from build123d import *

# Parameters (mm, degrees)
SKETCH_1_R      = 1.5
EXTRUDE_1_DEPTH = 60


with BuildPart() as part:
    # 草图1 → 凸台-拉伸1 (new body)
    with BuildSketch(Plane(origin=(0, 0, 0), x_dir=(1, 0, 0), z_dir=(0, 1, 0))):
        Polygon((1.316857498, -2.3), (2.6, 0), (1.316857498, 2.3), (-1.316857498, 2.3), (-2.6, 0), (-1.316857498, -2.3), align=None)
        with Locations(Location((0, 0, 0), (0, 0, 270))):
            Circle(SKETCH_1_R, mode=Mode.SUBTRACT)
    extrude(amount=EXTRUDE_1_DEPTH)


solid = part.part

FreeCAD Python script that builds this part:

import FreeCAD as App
import Part
import Sketcher

V = App.Vector

doc = App.newDocument("Part")
params = doc.addObject("Spreadsheet::Sheet", "Params")
for row, (alias, value) in enumerate([
    ("sketch1_diameter", "3 mm"),
    ("pad1_length", "60 mm"),
], start=1):
    params.set(f"A{row}", alias)
    params.set(f"B{row}", "=" + value)
    params.setAlias(f"B{row}", alias)

body = doc.addObject("PartDesign::Body", "Body")

# Sketch on XZ plane
sketch1 = body.newObject("Sketcher::SketchObject", "Sketch")
sketch1.AttachmentSupport = (doc.getObject("XZ_Plane"), [""])
sketch1.MapMode = "FlatFace"
sketch1.addGeometry([
    Part.LineSegment(V(1.3, 2.3, 0), V(2.6, 0, 0)),  # 0
    Part.LineSegment(V(2.6, 0, 0), V(1.3, -2.3, 0)),  # 1
    Part.LineSegment(V(1.3, -2.3, 0), V(-1.3, -2.3, 0)),  # 2
    Part.LineSegment(V(-1.3, -2.3, 0), V(-2.6, 0, 0)),  # 3
    Part.LineSegment(V(-2.6, 0, 0), V(-1.3, 2.3, 0)),  # 4
    Part.LineSegment(V(-1.3, 2.3, 0), V(1.3, 2.3, 0)),  # 5
    Part.Circle(V(0, 0, 0), V(0, 0, 1), 1.5),  # 6
], False)
sketch1.addConstraint([
    Sketcher.Constraint("Coincident", 0, 2, 1, 1),
    Sketcher.Constraint("Coincident", 1, 2, 2, 1),
    Sketcher.Constraint("Coincident", 2, 2, 3, 1),
    Sketcher.Constraint("Coincident", 3, 2, 4, 1),
    Sketcher.Constraint("Coincident", 4, 2, 5, 1),
    Sketcher.Constraint("Coincident", 5, 2, 0, 1),
    Sketcher.Constraint("Horizontal", 2),
    Sketcher.Constraint("Horizontal", 5),
    Sketcher.Constraint("Coincident", 6, 3, -1, 1),
    Sketcher.Constraint("Symmetric", 0, 2, 3, 2, -1, 1),
    Sketcher.Constraint("Symmetric", 1, 2, 4, 2, -1, 1),
    Sketcher.Constraint("PointOnObject", 0, 2, -1),
    Sketcher.Constraint("Parallel", 0, 3),
    Sketcher.Constraint("Vertical", 2, 2, 4, 2),
    Sketcher.Constraint("Diameter", 6, 3.0),
    Sketcher.Constraint("DistanceX", -1, 1, 0, 2, 2.6),
    Sketcher.Constraint("DistanceY", 1, 2, -1, 1, 2.3),
    Sketcher.Constraint("DistanceX", 2, 2, 2, 1, 2.633715),
])
sketch1.setExpression("Constraints[14]", "Params.sketch1_diameter")
pad1 = body.newObject("PartDesign::Pad", "Pad")
pad1.Profile = sketch1
pad1.setExpression("Length", "Params.pad1_length")
pad1.Reversed = True

doc.recompute()
